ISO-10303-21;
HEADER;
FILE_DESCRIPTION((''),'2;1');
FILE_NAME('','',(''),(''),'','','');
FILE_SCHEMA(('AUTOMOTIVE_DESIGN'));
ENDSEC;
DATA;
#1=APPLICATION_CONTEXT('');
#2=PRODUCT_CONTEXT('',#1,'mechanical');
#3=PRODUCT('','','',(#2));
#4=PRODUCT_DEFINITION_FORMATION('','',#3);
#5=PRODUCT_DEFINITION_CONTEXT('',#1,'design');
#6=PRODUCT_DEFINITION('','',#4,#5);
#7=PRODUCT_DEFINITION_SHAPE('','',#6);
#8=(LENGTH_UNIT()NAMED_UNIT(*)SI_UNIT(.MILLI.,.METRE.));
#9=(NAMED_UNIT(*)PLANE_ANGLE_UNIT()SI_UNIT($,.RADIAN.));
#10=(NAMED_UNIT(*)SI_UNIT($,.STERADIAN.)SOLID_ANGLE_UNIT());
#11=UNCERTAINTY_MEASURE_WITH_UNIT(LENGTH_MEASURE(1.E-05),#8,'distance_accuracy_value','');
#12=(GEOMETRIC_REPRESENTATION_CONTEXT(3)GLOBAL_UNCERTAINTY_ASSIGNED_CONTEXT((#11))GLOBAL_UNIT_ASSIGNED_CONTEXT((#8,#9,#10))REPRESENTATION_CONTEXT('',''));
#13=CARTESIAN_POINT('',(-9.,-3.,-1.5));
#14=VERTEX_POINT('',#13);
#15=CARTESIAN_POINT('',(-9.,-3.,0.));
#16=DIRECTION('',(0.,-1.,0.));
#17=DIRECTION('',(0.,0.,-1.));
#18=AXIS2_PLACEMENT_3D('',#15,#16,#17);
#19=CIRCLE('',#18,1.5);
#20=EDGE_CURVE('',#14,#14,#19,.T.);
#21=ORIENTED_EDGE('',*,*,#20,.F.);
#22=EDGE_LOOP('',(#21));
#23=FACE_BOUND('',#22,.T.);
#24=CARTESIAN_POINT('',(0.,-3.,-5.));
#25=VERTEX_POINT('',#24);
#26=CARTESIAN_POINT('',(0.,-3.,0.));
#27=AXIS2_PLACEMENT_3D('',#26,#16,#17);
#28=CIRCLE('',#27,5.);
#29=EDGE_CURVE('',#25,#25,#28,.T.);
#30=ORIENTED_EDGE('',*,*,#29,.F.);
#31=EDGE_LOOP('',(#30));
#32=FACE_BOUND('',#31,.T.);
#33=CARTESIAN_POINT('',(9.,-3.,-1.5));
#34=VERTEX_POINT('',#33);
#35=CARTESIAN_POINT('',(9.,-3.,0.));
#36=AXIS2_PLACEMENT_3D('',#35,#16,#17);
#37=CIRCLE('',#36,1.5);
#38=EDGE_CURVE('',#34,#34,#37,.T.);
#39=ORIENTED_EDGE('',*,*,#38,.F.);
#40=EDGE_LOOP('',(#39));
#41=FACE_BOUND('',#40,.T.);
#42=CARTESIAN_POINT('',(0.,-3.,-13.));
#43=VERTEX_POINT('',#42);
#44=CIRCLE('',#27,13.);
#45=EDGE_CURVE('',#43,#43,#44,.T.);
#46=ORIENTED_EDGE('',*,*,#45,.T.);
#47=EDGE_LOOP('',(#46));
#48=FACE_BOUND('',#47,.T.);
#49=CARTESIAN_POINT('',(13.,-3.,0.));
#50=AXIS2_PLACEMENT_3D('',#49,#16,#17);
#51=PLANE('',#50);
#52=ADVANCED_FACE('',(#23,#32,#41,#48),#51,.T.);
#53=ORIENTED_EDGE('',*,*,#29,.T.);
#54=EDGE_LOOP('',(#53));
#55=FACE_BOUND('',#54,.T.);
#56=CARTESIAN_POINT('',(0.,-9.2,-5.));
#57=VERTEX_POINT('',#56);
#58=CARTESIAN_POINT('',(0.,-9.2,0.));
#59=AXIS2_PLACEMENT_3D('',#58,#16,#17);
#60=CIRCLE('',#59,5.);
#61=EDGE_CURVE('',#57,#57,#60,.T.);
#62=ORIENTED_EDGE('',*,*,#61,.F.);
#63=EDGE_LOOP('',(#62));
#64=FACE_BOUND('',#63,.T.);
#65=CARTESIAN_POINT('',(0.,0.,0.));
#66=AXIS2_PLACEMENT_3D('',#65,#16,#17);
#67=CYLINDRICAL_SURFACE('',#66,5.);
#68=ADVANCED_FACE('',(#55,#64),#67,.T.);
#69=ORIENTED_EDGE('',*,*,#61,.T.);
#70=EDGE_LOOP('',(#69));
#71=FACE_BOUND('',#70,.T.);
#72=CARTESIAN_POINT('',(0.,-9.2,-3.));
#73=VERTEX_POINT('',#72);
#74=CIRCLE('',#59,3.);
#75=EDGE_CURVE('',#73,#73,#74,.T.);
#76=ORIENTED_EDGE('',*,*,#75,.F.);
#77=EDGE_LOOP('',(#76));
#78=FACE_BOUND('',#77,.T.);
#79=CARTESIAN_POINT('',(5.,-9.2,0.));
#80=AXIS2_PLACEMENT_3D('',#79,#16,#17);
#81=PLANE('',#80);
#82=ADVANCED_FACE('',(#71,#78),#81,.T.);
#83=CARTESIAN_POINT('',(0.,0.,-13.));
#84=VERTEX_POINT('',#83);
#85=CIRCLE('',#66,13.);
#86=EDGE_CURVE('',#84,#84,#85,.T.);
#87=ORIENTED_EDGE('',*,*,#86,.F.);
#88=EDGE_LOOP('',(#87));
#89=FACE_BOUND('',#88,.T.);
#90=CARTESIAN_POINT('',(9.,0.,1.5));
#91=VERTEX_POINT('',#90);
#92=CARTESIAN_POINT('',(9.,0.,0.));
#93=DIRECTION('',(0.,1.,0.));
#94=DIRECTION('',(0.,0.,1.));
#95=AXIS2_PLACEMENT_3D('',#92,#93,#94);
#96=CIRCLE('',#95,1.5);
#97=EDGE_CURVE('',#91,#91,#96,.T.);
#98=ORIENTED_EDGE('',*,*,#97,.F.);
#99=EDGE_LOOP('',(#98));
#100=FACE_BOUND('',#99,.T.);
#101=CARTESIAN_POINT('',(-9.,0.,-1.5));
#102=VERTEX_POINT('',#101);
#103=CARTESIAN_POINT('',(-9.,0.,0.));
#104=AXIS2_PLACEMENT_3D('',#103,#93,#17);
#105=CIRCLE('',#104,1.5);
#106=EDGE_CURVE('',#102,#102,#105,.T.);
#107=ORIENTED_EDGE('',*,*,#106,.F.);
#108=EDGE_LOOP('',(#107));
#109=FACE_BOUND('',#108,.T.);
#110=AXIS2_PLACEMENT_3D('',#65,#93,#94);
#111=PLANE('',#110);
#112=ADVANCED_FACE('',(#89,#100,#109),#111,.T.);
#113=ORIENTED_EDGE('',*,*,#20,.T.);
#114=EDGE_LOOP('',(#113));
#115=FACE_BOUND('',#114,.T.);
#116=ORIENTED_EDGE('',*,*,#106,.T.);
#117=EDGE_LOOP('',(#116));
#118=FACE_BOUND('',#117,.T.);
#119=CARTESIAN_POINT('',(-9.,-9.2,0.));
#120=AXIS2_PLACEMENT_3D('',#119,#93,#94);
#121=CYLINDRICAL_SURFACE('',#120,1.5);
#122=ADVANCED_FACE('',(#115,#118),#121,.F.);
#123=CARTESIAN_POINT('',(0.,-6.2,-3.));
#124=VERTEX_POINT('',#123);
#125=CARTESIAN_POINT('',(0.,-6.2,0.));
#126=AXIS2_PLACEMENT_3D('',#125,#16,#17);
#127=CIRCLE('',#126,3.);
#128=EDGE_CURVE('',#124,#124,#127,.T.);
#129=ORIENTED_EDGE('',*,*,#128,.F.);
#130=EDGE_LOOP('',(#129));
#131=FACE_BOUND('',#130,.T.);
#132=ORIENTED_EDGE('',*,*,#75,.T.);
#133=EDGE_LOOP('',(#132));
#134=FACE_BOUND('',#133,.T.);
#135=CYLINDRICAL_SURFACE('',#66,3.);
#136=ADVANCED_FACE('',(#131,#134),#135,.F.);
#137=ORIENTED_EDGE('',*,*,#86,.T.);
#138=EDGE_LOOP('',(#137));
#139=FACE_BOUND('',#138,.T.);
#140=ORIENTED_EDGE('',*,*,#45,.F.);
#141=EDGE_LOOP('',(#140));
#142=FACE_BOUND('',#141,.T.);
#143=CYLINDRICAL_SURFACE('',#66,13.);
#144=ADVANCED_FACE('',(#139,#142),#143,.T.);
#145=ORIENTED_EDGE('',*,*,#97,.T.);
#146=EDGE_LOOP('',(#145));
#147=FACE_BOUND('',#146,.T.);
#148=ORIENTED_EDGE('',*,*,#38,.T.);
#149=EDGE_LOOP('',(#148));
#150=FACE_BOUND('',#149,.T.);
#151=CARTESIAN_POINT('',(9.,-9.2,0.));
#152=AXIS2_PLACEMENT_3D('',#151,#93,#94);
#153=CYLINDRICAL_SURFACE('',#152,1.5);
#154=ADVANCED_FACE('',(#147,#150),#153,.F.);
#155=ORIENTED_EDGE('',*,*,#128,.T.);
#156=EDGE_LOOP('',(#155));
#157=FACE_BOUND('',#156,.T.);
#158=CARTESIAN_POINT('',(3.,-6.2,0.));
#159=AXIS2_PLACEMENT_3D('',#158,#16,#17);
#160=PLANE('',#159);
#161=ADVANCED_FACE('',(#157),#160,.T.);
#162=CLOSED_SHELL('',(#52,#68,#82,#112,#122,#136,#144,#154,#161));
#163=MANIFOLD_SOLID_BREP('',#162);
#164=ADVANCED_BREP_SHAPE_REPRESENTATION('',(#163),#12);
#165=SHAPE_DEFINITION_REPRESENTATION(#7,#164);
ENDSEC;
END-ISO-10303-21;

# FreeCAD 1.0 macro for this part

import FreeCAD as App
import Part
import Sketcher
from FreeCAD import Vector
Q = App.Units.Quantity

doc = App.newDocument("Part")
body = doc.addObject("PartDesign::Body", "Body")

sketch1 = body.newObject("Sketcher::SketchObject", "Sketch")
sketch1.AttachmentSupport = (doc.getObject("XY_Plane"), [""])
sketch1.MapMode = "FlatFace"
sketch1.addGeometry(Part.LineSegment(Vector(13, -3, 0), Vector(13, 0, 0)), False)
sketch1.addGeometry(Part.LineSegment(Vector(13, 0, 0), Vector(0, 0, 0)), False)
sketch1.addGeometry(Part.LineSegment(Vector(0, 0, 0), Vector(0, -6.2, 0)), False)
sketch1.addGeometry(Part.LineSegment(Vector(0, -6.2, 0), Vector(3, -6.2, 0)), False)
sketch1.addGeometry(Part.LineSegment(Vector(3, -6.2, 0), Vector(3, -9.2, 0)), False)
sketch1.addGeometry(Part.LineSegment(Vector(3, -9.2, 0), Vector(5, -9.2, 0)), False)
sketch1.addGeometry(Part.LineSegment(Vector(5, -9.2, 0), Vector(5, -3, 0)), False)
sketch1.addGeometry(Part.LineSegment(Vector(5, -3, 0), Vector(13, -3, 0)), False)
sketch1.addConstraint(Sketcher.Constraint("Coincident", 0, 2, 1, 1))
sketch1.addConstraint(Sketcher.Constraint("Coincident", 1, 2, 2, 1))
sketch1.addConstraint(Sketcher.Constraint("Coincident", 2, 2, 3, 1))
sketch1.addConstraint(Sketcher.Constraint("Coincident", 3, 2, 4, 1))
sketch1.addConstraint(Sketcher.Constraint("Coincident", 4, 2, 5, 1))
sketch1.addConstraint(Sketcher.Constraint("Coincident", 5, 2, 6, 1))
sketch1.addConstraint(Sketcher.Constraint("Coincident", 6, 2, 7, 1))
sketch1.addConstraint(Sketcher.Constraint("Coincident", 7, 2, 0, 1))
sketch1.addConstraint(Sketcher.Constraint("Vertical", 0))
sketch1.addConstraint(Sketcher.Constraint("Horizontal", 1))
sketch1.addConstraint(Sketcher.Constraint("Vertical", 2))
sketch1.addConstraint(Sketcher.Constraint("Horizontal", 3))
sketch1.addConstraint(Sketcher.Constraint("Vertical", 4))
sketch1.addConstraint(Sketcher.Constraint("Horizontal", 5))
sketch1.addConstraint(Sketcher.Constraint("Vertical", 6))
sketch1.addConstraint(Sketcher.Constraint("Horizontal", 7))
sketch1.addConstraint(Sketcher.Constraint("Coincident", 1, 2, -1, 1))
sketch1.addConstraint(Sketcher.Constraint("Equal", 3, 0))
sketch1.addConstraint(Sketcher.Constraint("Equal", 0, 4))
sketch1.addConstraint(Sketcher.Constraint("DistanceX", 1, 2, 1, 1, Q("13 mm")))
sketch1.addConstraint(Sketcher.Constraint("DistanceX", 3, 1, 3, 2, Q("3 mm")))
sketch1.addConstraint(Sketcher.Constraint("DistanceX", 5, 1, 5, 2, Q("2 mm")))
sketch1.addConstraint(Sketcher.Constraint("DistanceY", 2, 2, 2, 1, Q("6.2 mm")))
revolution = body.newObject("PartDesign::Revolution", "Revolution")
revolution.Profile = sketch1
revolution.ReferenceAxis = (sketch1, ["V_Axis"])
revolution.Angle = 360

sketch2 = body.newObject("Sketcher::SketchObject", "Sketch001")
sketch2.AttachmentSupport = (doc.getObject("XZ_Plane"), [""])
sketch2.MapMode = "FlatFace"
sketch2.addGeometry(Part.Circle(Vector(9, 0, 0), Vector(0, 0, 1), 1.5), False)
sketch2.addGeometry(Part.Circle(Vector(-9, 0, 0), Vector(0, 0, 1), 1.5), False)
sketch2.addConstraint(Sketcher.Constraint("Equal", 0, 1))
sketch2.addConstraint(Sketcher.Constraint("Symmetric", 0, 3, 1, 3, -1, 1))
sketch2.addConstraint(Sketcher.Constraint("PointOnObject", 0, 3, -1))
sketch2.addConstraint(Sketcher.Constraint("Diameter", 0, Q("3 mm")))
sketch2.addConstraint(Sketcher.Constraint("DistanceX", -1, 1, 0, 3, Q("9 mm")))
pocket1 = body.newObject("PartDesign::Pocket", "Pocket")
pocket1.Profile = sketch2
pocket1.Type = "ThroughAll"
pocket1.Reversed = True

doc.recompute()
